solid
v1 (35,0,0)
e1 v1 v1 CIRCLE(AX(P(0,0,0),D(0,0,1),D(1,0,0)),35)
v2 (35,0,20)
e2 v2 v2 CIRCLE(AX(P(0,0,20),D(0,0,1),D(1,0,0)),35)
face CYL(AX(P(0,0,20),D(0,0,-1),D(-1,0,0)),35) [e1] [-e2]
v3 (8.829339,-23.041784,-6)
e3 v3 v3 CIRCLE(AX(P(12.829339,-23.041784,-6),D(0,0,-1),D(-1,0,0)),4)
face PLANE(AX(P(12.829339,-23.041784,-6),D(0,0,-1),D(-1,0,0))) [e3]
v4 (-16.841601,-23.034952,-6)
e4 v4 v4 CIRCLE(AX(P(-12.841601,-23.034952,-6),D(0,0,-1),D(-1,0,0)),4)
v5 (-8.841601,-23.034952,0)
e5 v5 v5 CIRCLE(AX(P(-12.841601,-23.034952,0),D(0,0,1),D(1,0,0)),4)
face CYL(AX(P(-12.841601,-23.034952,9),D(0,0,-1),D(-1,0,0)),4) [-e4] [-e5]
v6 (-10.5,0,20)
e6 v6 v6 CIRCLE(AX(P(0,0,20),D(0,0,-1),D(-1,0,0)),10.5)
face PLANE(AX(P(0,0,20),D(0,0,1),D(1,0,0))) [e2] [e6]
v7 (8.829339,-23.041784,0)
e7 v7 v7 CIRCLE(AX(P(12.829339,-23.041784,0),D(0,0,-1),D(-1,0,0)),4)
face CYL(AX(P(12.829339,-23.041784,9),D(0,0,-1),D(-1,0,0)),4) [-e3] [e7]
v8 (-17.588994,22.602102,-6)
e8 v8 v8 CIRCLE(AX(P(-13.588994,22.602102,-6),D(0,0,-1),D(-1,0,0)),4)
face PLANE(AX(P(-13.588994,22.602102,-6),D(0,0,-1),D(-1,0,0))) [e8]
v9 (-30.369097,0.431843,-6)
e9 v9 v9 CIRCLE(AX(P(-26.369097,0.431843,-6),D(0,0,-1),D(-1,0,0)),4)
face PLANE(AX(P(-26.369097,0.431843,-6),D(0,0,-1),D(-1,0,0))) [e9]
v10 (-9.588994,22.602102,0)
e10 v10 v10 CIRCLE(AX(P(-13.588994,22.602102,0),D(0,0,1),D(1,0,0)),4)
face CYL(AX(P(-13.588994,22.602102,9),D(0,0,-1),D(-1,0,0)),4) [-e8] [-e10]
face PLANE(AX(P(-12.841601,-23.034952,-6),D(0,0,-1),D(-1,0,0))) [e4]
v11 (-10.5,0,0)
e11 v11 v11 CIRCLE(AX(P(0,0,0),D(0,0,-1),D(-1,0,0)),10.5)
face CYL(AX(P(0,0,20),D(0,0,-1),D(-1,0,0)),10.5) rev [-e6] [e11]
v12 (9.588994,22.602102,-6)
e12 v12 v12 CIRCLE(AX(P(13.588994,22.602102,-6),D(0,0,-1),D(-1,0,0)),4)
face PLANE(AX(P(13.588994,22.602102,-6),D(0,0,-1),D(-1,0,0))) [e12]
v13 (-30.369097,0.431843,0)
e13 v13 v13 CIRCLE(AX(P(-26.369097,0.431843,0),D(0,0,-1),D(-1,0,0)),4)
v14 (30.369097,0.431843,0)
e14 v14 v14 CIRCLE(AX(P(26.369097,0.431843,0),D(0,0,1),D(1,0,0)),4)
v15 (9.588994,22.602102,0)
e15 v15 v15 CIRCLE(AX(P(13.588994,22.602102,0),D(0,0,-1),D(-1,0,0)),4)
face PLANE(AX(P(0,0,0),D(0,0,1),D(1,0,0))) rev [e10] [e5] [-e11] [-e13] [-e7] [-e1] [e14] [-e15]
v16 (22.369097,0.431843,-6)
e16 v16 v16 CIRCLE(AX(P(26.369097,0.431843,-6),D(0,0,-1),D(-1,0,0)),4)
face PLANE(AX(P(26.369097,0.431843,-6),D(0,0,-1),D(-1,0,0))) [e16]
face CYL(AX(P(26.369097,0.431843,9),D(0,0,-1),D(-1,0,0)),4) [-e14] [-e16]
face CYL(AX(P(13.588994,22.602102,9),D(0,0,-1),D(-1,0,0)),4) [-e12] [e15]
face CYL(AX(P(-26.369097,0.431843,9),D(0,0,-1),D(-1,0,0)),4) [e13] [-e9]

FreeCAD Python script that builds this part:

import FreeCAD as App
import Part
import Sketcher
from FreeCAD import Vector

doc = App.newDocument("Part")
body = doc.addObject("PartDesign::Body", "Body")

sketch1 = doc.addObject("Sketcher::SketchObject", "Sketch")
body.addObject(sketch1)
sketch1.AttachmentSupport = (doc.XY_Plane, [""])
sketch1.MapMode = "FlatFace"
sketch1.addGeometry([
    Part.Circle(Vector(0, 0, 0), Vector(0, 0, 1), 35),
    Part.Circle(Vector(0, 0, 0), Vector(0, 0, 1), 7),
], False)
sketch1.addConstraint([
    Sketcher.Constraint("Coincident", 0, 3, -1, 1),
    Sketcher.Constraint("Coincident", 1, 3, -1, 1),
    Sketcher.Constraint("Diameter", 0, 70.0),
    Sketcher.Constraint("Diameter", 1, 14.0),
])
pad1 = doc.addObject("PartDesign::Pad", "Pad")
body.addObject(pad1)
pad1.Profile = sketch1
pad1.Length = 20

sketch2 = doc.addObject("Sketcher::SketchObject", "Sketch001")
body.addObject(sketch2)
sketch2.AttachmentSupport = (doc.XY_Plane, [""])
sketch2.MapMode = "FlatFace"
sketch2.addGeometry(Part.Circle(Vector(0, 0, 0), Vector(0, 0, 1), 14), False)
sketch2.addConstraint([
    Sketcher.Constraint("Coincident", 0, 3, -1, 1),
    Sketcher.Constraint("Diameter", 0, 28.0),
])
pocket1 = doc.addObject("PartDesign::Pocket", "Pocket")
body.addObject(pocket1)
pocket1.Profile = sketch2
pocket1.Length = 5
pocket1.Reversed = True

sketch3 = doc.addObject("Sketcher::SketchObject", "Sketch002")
body.addObject(sketch3)
sketch3.AttachmentSupport = (doc.XY_Plane, [""])
sketch3.MapMode = "FlatFace"
sketch3.addGeometry([
    Part.Circle(Vector(13.588994, 22.602102, 0), Vector(0, 0, 1), 4),
    Part.Circle(Vector(-13.588994, 22.602102, 0), Vector(0, 0, 1), 4),
    Part.Circle(Vector(-26.369097, 0.431843, 0), Vector(0, 0, 1), 4),
    Part.Circle(Vector(-12.841601, -23.034952, 0), Vector(0, 0, 1), 4),
    Part.Circle(Vector(12.829339, -23.041784, 0), Vector(0, 0, 1), 4),
    Part.Circle(Vector(26.369097, 0.431843, 0), Vector(0, 0, 1), 4),
], False)
sketch3.addConstraint([
    Sketcher.Constraint("Equal", 0, 1),
    Sketcher.Constraint("Equal", 1, 2),
    Sketcher.Constraint("Equal", 2, 3),
    Sketcher.Constraint("Equal", 3, 4),
    Sketcher.Constraint("Equal", 4, 5),
    Sketcher.Constraint("Symmetric", 0, 3, 1, 3, -2),
    Sketcher.Constraint("Symmetric", 2, 3, 5, 3, -2),
    Sketcher.Constraint("Diameter", 0, 8.0),
    Sketcher.Constraint("DistanceY", -1, 1, 0, 3, 22.602102),
    Sketcher.Constraint("DistanceX", 3, 3, -1, 1, 12.841601),
    Sketcher.Constraint("DistanceX", -1, 1, 4, 3, 12.829339),
    Sketcher.Constraint("DistanceY", 2, 3, 1, 3, 22.170258),
    Sketcher.Constraint("DistanceX", 2, 3, 0, 3, 39.95809),
    Sketcher.Constraint("DistanceX", 4, 3, 5, 3, 13.539758),
    Sketcher.Constraint("DistanceY", 3, 3, -1, 1, 23.034952),
    Sketcher.Constraint("DistanceY", 4, 3, -1, 1, 23.041784),
])
pocket2 = doc.addObject("PartDesign::Pocket", "Pocket001")
body.addObject(pocket2)
pocket2.Profile = sketch3
pocket2.Length = 5
pocket2.Reversed = True

sketch4 = doc.addObject("Sketcher::SketchObject", "Sketch003")
body.addObject(sketch4)
sketch4.AttachmentSupport = (doc.XY_Plane, [""])
sketch4.MapMode = "FlatFace"
sketch4.addGeometry(Part.Circle(Vector(0, 0, 0), Vector(0, 0, 1), 14), False)
sketch4.addConstraint([
    Sketcher.Constraint("Coincident", 0, 3, -1, 1),
    Sketcher.Constraint("Diameter", 0, 28.0),
])
pocket3 = doc.addObject("PartDesign::Pocket", "Pocket002")
body.addObject(pocket3)
pocket3.Profile = sketch4
pocket3.Length = 25
pocket3.Reversed = True

sketch5 = doc.addObject("Sketcher::SketchObject", "Sketch004")
body.addObject(sketch5)
sketch5.AttachmentSupport = (doc.XY_Plane, [""])
sketch5.MapMode = "FlatFace"
sketch5.addGeometry([
    Part.Circle(Vector(13.588994, 22.602102, 0), Vector(0, 0, 1), 4),
    Part.Circle(Vector(-13.588994, 22.602102, 0), Vector(0, 0, 1), 4),
    Part.Circle(Vector(-26.369097, 0.431843, 0), Vector(0, 0, 1), 4),
    Part.Circle(Vector(-12.841601, -23.034952, 0), Vector(0, 0, 1), 4),
    Part.Circle(Vector(12.829339, -23.041784, 0), Vector(0, 0, 1), 4),
    Part.Circle(Vector(26.369097, 0.431843, 0), Vector(0, 0, 1), 4),
], False)
sketch5.addConstraint([
    Sketcher.Constraint("Equal", 0, 1),
    Sketcher.Constraint("Equal", 1, 2),
    Sketcher.Constraint("Equal", 2, 3),
    Sketcher.Constraint("Equal", 3, 4),
    Sketcher.Constraint("Equal", 4, 5),
    Sketcher.Constraint("Symmetric", 0, 3, 1, 3, -2),
    Sketcher.Constraint("Symmetric", 2, 3, 5, 3, -2),
    Sketcher.Constraint("Diameter", 0, 8.0),
    Sketcher.Constraint("DistanceY", -1, 1, 0, 3, 22.602102),
    Sketcher.Constraint("DistanceX", 3, 3, -1, 1, 12.841601),
    Sketcher.Constraint("DistanceX", -1, 1, 4, 3, 12.829339),
    Sketcher.Constraint("DistanceY", 2, 3, 1, 3, 22.170258),
    Sketcher.Constraint("DistanceX", 2, 3, 0, 3, 39.95809),
    Sketcher.Constraint("DistanceX", 4, 3, 5, 3, 13.539758),
    Sketcher.Constraint("DistanceY", 3, 3, -1, 1, 23.034952),
    Sketcher.Constraint("DistanceY", 4, 3, -1, 1, 23.041784),
])
pad2 = doc.addObject("PartDesign::Pad", "Pad001")
body.addObject(pad2)
pad2.Profile = sketch5
pad2.Type = "TwoLengths"
pad2.Length = 6
pad2.Length2 = 9
pad2.Reversed = True

sketch6 = doc.addObject("Sketcher::SketchObject", "Sketch005")
body.addObject(sketch6)
sketch6.AttachmentSupport = (doc.XY_Plane, [""])
sketch6.MapMode = "FlatFace"
sketch6.addGeometry([
    Part.Circle(Vector(0, 0, 0), Vector(0, 0, 1), 14),
    Part.Circle(Vector(0, 0, 0), Vector(0, 0, 1), 10.5),
], False)
sketch6.addConstraint([
    Sketcher.Constraint("Coincident", 0, 3, -1, 1),
    Sketcher.Constraint("Coincident", 1, 3, -1, 1),
    Sketcher.Constraint("Diameter", 0, 28.0),
    Sketcher.Constraint("Diameter", 1, 21.0),
])
pad3 = doc.addObject("PartDesign::Pad", "Pad002")
body.addObject(pad3)
pad3.Profile = sketch6
pad3.Length = 20

doc.recompute()
